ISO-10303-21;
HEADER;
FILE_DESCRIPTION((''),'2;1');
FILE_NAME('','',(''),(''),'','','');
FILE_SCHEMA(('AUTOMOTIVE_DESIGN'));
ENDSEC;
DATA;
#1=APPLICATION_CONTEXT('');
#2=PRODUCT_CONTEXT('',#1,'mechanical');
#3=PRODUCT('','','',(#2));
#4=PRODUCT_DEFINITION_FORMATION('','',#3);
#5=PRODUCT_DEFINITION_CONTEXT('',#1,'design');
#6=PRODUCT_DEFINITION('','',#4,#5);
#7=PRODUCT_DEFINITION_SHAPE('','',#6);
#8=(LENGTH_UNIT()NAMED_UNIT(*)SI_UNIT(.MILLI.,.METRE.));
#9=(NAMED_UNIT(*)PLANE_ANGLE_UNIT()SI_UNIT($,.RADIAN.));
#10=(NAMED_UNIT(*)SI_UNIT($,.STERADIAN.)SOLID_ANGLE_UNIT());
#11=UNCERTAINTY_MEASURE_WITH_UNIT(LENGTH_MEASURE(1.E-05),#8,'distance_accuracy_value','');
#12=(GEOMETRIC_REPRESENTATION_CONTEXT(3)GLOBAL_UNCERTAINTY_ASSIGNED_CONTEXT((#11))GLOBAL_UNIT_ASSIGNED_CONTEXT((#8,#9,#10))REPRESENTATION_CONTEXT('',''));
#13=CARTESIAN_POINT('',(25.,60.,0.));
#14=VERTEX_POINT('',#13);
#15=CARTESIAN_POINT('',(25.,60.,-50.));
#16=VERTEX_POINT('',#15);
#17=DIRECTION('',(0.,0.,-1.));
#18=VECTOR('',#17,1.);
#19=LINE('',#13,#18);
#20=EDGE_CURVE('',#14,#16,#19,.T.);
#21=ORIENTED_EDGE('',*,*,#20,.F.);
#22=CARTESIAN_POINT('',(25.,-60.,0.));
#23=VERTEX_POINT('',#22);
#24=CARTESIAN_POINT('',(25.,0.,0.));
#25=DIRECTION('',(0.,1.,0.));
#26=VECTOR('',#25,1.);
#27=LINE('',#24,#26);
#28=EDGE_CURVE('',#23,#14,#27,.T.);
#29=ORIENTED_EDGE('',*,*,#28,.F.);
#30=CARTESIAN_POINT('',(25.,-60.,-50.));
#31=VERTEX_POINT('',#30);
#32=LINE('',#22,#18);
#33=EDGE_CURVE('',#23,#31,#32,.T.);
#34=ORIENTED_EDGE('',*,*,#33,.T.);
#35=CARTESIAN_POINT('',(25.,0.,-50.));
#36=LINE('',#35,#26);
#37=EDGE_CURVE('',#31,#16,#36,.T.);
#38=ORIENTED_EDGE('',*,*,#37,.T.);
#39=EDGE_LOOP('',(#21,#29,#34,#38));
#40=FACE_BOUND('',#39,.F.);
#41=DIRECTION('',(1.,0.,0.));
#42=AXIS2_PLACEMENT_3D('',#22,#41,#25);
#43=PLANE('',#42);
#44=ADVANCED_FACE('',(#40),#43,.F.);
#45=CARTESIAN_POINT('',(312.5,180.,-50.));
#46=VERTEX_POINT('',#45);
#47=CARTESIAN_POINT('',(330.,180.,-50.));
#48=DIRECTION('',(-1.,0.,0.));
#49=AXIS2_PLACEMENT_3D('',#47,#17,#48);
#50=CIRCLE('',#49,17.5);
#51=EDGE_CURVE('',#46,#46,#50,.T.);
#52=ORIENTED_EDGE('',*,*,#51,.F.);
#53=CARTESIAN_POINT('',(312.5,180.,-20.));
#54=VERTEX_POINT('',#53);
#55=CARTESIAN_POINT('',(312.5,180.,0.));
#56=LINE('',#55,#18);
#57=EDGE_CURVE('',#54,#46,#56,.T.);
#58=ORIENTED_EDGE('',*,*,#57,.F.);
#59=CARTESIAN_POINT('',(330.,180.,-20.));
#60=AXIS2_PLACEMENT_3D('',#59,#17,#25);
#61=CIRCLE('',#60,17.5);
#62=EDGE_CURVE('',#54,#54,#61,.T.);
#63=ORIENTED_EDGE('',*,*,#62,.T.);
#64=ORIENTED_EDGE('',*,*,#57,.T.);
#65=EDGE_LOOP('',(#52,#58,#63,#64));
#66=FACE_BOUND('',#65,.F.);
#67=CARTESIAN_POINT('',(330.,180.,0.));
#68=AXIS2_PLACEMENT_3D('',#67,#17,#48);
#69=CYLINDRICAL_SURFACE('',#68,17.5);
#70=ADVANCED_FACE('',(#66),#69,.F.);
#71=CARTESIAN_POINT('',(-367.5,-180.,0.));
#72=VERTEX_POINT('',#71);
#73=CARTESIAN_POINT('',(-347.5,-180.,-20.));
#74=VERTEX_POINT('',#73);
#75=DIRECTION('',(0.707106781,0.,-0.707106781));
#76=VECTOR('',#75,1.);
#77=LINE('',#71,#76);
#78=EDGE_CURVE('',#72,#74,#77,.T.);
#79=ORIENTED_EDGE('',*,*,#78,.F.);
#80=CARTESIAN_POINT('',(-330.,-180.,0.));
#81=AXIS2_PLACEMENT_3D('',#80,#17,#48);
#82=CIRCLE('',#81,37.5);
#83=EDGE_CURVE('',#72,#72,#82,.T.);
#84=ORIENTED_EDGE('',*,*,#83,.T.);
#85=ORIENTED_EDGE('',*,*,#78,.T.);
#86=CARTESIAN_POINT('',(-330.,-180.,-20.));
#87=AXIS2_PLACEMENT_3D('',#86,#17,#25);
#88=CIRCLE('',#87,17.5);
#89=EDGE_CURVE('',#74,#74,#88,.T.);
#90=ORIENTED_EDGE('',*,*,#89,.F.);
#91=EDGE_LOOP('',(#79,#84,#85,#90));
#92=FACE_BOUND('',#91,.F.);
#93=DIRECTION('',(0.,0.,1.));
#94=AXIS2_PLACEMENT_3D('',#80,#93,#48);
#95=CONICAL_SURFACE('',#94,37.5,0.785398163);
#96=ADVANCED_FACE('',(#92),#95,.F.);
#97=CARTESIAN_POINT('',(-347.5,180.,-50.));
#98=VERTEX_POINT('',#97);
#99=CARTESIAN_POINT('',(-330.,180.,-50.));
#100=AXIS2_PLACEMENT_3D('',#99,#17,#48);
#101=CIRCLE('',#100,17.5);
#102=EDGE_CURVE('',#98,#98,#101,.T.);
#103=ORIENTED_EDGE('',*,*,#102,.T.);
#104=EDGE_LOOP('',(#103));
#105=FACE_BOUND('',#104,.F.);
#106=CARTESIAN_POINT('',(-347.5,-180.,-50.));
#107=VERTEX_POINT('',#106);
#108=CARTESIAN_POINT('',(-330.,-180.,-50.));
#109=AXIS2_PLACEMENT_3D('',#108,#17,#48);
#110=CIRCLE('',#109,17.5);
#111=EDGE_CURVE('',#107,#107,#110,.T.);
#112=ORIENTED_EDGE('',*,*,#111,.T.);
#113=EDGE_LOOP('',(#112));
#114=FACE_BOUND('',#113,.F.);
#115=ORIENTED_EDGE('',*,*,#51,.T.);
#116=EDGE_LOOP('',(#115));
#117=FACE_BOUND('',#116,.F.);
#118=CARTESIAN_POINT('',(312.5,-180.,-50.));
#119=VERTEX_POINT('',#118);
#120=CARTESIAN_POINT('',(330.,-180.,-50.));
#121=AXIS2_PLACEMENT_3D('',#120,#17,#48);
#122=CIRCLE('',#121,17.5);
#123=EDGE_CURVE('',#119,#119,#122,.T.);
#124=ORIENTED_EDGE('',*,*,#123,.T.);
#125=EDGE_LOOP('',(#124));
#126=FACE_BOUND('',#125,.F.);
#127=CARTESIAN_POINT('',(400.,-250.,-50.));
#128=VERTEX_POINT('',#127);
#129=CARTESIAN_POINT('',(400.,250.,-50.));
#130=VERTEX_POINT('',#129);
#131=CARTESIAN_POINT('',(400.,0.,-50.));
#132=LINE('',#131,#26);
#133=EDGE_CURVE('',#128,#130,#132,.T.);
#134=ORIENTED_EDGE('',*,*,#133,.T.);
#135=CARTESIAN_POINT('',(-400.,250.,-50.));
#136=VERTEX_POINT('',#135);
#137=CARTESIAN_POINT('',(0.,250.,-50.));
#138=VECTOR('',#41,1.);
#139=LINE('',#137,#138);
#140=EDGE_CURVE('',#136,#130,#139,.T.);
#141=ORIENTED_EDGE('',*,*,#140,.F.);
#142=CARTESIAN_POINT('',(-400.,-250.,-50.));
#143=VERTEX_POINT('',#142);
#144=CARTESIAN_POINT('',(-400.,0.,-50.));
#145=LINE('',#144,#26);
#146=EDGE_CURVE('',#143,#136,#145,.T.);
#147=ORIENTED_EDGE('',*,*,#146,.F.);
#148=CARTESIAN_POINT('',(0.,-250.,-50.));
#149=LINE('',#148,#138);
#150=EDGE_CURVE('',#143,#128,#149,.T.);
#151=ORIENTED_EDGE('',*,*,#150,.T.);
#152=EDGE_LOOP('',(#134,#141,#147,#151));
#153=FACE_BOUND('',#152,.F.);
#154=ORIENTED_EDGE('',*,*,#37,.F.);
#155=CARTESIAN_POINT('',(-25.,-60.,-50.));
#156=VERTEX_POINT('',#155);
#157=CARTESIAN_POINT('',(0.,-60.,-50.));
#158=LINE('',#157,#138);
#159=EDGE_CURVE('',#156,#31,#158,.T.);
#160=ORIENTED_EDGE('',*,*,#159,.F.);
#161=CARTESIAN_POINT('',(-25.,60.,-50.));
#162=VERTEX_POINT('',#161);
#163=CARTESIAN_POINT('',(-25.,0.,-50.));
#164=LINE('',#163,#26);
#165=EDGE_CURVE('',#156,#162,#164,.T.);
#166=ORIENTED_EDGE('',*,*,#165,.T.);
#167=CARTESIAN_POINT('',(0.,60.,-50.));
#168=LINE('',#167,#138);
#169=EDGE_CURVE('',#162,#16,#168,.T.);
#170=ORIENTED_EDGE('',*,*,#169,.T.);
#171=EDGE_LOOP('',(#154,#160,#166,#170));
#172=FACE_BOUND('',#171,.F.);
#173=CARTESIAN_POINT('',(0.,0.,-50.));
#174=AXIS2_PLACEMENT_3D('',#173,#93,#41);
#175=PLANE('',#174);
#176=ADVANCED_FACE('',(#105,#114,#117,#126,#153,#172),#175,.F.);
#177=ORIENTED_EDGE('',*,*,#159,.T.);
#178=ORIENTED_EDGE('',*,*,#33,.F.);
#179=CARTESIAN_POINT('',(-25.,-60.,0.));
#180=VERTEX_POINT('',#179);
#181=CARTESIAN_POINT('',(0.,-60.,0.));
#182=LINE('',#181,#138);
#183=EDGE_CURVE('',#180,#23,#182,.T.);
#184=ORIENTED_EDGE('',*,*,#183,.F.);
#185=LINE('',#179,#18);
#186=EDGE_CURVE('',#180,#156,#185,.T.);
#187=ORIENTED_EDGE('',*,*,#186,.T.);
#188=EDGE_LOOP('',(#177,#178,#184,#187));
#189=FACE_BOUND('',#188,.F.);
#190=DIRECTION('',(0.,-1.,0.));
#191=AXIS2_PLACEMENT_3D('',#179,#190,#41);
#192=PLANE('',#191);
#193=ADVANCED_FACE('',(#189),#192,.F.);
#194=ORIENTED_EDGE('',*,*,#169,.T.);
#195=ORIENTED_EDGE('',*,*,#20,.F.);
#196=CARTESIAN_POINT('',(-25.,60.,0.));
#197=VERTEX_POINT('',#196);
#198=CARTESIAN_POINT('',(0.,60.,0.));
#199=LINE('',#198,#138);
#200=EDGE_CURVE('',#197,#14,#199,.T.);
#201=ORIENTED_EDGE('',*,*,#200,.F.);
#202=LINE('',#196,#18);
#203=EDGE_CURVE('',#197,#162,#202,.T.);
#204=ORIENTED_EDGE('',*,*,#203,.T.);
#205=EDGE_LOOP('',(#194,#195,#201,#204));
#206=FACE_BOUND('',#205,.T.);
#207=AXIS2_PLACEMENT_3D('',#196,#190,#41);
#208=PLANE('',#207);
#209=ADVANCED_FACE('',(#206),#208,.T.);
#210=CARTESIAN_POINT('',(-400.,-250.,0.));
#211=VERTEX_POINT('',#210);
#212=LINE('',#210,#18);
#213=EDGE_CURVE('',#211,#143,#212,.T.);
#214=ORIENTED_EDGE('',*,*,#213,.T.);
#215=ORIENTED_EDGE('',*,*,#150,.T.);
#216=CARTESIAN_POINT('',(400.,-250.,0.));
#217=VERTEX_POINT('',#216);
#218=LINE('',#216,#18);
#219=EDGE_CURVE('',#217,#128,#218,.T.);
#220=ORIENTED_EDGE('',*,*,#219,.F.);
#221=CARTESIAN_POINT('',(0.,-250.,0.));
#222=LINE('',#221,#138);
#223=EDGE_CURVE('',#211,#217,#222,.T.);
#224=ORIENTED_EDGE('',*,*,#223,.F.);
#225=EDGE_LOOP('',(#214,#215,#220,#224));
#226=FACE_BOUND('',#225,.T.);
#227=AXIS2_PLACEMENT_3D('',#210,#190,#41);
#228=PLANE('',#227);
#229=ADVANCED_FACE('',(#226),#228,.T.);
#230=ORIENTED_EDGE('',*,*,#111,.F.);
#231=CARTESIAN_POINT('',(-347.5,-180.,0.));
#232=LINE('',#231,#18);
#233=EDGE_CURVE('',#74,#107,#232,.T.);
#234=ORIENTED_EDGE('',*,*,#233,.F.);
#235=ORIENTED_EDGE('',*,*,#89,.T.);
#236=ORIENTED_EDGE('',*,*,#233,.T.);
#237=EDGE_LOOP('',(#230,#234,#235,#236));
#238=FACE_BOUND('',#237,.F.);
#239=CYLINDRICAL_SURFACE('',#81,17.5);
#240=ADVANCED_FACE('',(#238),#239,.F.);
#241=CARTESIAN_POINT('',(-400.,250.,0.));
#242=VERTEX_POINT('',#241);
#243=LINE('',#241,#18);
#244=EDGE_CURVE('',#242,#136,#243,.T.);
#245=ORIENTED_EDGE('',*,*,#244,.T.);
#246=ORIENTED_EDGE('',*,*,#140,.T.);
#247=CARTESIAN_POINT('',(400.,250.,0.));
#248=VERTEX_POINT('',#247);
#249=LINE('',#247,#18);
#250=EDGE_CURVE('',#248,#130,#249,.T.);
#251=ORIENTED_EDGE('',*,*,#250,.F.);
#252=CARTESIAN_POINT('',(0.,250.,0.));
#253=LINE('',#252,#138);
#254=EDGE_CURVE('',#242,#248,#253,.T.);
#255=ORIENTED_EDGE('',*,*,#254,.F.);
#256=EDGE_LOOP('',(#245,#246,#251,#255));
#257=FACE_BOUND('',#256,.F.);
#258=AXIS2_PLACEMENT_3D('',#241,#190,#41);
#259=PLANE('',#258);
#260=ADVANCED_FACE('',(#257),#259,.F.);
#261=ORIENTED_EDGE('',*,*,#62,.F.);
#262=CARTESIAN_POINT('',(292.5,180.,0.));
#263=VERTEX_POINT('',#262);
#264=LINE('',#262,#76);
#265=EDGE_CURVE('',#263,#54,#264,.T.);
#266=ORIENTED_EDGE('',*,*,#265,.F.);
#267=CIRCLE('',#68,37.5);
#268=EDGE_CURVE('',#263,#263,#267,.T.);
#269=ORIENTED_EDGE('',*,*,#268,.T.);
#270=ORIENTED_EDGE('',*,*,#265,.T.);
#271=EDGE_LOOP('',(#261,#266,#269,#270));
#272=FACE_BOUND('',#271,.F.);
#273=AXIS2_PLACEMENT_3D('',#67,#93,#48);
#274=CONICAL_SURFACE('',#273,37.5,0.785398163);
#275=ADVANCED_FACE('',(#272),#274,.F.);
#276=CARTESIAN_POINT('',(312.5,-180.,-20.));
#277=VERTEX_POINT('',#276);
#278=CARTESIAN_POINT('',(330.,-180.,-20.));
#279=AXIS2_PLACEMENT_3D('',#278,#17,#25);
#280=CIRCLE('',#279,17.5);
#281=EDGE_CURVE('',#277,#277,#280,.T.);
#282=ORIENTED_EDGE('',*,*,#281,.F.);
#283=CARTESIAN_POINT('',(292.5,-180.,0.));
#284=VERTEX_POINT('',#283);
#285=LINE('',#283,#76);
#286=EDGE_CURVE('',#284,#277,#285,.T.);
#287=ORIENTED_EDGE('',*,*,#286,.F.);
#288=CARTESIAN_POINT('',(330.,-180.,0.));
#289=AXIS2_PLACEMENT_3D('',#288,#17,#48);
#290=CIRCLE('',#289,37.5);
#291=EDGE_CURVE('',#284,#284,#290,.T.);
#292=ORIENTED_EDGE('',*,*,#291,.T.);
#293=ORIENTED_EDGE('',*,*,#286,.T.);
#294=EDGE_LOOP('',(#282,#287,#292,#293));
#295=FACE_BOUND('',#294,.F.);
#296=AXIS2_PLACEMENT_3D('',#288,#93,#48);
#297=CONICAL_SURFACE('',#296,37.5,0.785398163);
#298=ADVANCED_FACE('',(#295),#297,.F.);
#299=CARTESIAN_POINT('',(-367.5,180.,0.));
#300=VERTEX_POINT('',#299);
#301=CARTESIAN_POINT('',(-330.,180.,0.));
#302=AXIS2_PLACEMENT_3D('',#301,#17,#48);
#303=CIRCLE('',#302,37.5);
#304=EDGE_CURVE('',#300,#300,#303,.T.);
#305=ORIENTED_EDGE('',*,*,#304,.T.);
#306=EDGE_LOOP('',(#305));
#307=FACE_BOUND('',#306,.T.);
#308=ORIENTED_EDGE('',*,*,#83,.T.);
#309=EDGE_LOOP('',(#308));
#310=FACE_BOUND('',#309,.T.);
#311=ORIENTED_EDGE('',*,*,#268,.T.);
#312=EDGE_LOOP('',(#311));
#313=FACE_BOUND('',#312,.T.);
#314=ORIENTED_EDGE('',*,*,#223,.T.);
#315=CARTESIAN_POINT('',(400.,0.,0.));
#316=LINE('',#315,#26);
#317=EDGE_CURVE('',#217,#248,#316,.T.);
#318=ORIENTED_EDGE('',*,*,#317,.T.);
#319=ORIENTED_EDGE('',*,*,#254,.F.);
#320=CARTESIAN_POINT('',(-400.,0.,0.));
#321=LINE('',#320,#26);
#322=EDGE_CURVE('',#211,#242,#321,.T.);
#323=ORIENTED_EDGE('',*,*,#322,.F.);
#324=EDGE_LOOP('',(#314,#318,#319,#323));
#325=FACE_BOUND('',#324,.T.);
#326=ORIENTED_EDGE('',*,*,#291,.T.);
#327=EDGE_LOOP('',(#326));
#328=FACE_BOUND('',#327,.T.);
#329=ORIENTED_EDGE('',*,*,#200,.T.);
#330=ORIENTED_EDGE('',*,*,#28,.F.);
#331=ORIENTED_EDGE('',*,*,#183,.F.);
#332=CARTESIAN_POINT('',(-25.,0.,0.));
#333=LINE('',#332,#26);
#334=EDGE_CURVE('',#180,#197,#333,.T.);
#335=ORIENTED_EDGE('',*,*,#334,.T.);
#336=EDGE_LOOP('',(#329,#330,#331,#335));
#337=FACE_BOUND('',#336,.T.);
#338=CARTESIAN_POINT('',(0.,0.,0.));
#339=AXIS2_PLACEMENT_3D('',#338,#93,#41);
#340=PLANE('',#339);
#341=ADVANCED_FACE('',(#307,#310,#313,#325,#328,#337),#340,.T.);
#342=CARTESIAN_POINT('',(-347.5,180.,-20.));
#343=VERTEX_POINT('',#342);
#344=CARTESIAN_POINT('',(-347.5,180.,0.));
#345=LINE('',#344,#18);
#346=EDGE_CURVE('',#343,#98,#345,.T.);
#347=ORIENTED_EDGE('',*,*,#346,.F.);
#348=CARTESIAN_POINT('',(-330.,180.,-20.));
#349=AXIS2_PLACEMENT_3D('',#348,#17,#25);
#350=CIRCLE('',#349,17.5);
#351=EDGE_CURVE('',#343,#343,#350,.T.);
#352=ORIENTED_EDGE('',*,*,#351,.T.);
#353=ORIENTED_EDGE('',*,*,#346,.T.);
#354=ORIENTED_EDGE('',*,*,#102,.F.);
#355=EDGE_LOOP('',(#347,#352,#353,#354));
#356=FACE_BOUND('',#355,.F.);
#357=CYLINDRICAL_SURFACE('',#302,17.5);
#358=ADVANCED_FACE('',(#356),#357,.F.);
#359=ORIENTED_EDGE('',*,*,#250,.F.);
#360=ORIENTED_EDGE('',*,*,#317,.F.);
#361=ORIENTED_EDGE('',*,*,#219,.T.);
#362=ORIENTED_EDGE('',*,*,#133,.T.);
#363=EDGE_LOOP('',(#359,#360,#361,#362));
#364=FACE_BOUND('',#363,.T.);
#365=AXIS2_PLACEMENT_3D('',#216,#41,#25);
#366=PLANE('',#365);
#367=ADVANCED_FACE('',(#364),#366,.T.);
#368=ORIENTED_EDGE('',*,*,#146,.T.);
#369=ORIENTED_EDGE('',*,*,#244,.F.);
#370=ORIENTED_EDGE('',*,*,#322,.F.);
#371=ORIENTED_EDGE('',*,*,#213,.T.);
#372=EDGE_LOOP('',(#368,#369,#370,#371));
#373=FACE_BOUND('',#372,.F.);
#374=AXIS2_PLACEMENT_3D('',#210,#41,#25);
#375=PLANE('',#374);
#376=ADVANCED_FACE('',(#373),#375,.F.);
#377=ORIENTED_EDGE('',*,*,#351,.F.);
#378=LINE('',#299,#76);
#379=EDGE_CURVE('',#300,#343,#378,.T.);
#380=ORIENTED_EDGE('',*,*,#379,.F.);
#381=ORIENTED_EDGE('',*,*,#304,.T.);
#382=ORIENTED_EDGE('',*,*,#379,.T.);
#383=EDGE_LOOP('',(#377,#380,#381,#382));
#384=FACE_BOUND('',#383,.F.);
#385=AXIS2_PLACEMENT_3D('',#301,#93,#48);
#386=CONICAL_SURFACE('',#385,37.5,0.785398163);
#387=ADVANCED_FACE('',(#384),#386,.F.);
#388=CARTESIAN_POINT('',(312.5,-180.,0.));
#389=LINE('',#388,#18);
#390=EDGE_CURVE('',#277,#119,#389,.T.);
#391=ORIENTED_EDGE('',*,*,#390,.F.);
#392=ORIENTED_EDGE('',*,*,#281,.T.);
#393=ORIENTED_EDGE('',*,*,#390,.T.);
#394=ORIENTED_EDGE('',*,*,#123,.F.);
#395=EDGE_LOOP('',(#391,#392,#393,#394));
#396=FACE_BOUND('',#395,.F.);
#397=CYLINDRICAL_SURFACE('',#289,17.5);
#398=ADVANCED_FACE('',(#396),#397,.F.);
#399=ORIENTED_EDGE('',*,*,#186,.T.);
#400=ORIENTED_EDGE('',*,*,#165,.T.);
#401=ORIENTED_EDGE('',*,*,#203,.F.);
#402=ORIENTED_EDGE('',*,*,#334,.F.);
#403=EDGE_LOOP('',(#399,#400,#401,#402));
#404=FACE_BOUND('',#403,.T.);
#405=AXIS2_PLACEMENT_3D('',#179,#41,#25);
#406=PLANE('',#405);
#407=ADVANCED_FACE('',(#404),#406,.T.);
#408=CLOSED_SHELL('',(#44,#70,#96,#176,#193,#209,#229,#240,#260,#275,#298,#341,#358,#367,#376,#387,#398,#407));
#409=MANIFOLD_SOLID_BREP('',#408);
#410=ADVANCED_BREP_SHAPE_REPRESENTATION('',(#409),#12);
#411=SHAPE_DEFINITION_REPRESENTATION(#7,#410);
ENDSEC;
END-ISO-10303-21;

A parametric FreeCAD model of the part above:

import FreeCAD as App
import Part
import Sketcher

V = App.Vector


def add_polygon(sketch, points):
    """Adds a closed chain of lines whose ends are joined by coincident constraints."""
    first, n = sketch.GeometryCount, len(points)
    for a, b in zip(points, points[1:] + points[:1]):
        sketch.addGeometry(Part.LineSegment(App.Vector(*a, 0), App.Vector(*b, 0)), False)
    for i in range(n):
        sketch.addConstraint(Sketcher.Constraint("Coincident", first + i, 2, first + (i + 1) % n, 1))

doc = App.newDocument("Part")
body = doc.addObject("PartDesign::Body", "Body")

sketch1 = body.newObject("Sketcher::SketchObject", "Sketch")
sketch1.AttachmentSupport = (doc.getObject("XY_Plane"), [""])
sketch1.MapMode = "FlatFace"
add_polygon(sketch1, [(-400, 250), (-400, -250), (400, -250), (400, 250)])
add_polygon(sketch1, [(25, -60), (-25, -60), (-25, 60), (25, 60)])
sketch1.addConstraint(Sketcher.Constraint("Vertical", 0))
sketch1.addConstraint(Sketcher.Constraint("Horizontal", 1))
sketch1.addConstraint(Sketcher.Constraint("Vertical", 2))
sketch1.addConstraint(Sketcher.Constraint("Horizontal", 3))
sketch1.addConstraint(Sketcher.Constraint("Horizontal", 4))
sketch1.addConstraint(Sketcher.Constraint("Vertical", 5))
sketch1.addConstraint(Sketcher.Constraint("Horizontal", 6))
sketch1.addConstraint(Sketcher.Constraint("Vertical", 7))
sketch1.addConstraint(Sketcher.Constraint("Symmetric", 0, 2, 2, 2, -1, 1))
sketch1.addConstraint(Sketcher.Constraint("Symmetric", 4, 2, 6, 2, -1, 1))
sketch1.addConstraint(Sketcher.Constraint("DistanceX", 1, 1, 1, 2, 800.0))
sketch1.addConstraint(Sketcher.Constraint("DistanceX", 4, 2, 4, 1, 50.0))
sketch1.addConstraint(Sketcher.Constraint("DistanceY", 0, 2, 0, 1, 500.0))
sketch1.addConstraint(Sketcher.Constraint("DistanceY", 5, 1, 5, 2, 120.0))
pad1 = body.newObject("PartDesign::Pad", "Pad")
pad1.Profile = sketch1
pad1.Length = 50
pad1.Reversed = True

sketch2 = body.newObject("Sketcher::SketchObject", "Sketch001")
sketch2.AttachmentSupport = (doc.getObject("XY_Plane"), [""])
sketch2.MapMode = "FlatFace"
sketch2.addGeometry(Part.Circle(V(-330, -180, 0), V(0, 0, 1), 17.5), False)
sketch2.addGeometry(Part.Circle(V(-330, 180, 0), V(0, 0, 1), 17.5), False)
sketch2.addGeometry(Part.Circle(V(330, 180, 0), V(0, 0, 1), 17.5), False)
sketch2.addGeometry(Part.Circle(V(330, -180, 0), V(0, 0, 1), 17.5), False)
sketch2.addConstraint(Sketcher.Constraint("Equal", 0, 1))
sketch2.addConstraint(Sketcher.Constraint("Equal", 1, 2))
sketch2.addConstraint(Sketcher.Constraint("Equal", 2, 3))
sketch2.addConstraint(Sketcher.Constraint("Symmetric", 0, 3, 2, 3, -1, 1))
sketch2.addConstraint(Sketcher.Constraint("Symmetric", 1, 3, 3, 3, -1, 1))
sketch2.addConstraint(Sketcher.Constraint("Symmetric", 1, 3, 2, 3, -2))
sketch2.addConstraint(Sketcher.Constraint("Diameter", 0, 35.0))
sketch2.addConstraint(Sketcher.Constraint("DistanceX", 0, 3, -1, 1, 330.0))
sketch2.addConstraint(Sketcher.Constraint("DistanceY", 0, 3, -1, 1, 180.0))
doc.recompute()
hole = body.newObject("PartDesign::Hole", "Hole")
hole.Profile = sketch2
hole.ThreadType = "None"
hole.Diameter = 35
hole.DepthType = "ThroughAll"
hole.HoleCutType = "Countersink"
hole.HoleCutDiameter = 75
hole.HoleCutCountersinkAngle = 90

doc.recompute()
